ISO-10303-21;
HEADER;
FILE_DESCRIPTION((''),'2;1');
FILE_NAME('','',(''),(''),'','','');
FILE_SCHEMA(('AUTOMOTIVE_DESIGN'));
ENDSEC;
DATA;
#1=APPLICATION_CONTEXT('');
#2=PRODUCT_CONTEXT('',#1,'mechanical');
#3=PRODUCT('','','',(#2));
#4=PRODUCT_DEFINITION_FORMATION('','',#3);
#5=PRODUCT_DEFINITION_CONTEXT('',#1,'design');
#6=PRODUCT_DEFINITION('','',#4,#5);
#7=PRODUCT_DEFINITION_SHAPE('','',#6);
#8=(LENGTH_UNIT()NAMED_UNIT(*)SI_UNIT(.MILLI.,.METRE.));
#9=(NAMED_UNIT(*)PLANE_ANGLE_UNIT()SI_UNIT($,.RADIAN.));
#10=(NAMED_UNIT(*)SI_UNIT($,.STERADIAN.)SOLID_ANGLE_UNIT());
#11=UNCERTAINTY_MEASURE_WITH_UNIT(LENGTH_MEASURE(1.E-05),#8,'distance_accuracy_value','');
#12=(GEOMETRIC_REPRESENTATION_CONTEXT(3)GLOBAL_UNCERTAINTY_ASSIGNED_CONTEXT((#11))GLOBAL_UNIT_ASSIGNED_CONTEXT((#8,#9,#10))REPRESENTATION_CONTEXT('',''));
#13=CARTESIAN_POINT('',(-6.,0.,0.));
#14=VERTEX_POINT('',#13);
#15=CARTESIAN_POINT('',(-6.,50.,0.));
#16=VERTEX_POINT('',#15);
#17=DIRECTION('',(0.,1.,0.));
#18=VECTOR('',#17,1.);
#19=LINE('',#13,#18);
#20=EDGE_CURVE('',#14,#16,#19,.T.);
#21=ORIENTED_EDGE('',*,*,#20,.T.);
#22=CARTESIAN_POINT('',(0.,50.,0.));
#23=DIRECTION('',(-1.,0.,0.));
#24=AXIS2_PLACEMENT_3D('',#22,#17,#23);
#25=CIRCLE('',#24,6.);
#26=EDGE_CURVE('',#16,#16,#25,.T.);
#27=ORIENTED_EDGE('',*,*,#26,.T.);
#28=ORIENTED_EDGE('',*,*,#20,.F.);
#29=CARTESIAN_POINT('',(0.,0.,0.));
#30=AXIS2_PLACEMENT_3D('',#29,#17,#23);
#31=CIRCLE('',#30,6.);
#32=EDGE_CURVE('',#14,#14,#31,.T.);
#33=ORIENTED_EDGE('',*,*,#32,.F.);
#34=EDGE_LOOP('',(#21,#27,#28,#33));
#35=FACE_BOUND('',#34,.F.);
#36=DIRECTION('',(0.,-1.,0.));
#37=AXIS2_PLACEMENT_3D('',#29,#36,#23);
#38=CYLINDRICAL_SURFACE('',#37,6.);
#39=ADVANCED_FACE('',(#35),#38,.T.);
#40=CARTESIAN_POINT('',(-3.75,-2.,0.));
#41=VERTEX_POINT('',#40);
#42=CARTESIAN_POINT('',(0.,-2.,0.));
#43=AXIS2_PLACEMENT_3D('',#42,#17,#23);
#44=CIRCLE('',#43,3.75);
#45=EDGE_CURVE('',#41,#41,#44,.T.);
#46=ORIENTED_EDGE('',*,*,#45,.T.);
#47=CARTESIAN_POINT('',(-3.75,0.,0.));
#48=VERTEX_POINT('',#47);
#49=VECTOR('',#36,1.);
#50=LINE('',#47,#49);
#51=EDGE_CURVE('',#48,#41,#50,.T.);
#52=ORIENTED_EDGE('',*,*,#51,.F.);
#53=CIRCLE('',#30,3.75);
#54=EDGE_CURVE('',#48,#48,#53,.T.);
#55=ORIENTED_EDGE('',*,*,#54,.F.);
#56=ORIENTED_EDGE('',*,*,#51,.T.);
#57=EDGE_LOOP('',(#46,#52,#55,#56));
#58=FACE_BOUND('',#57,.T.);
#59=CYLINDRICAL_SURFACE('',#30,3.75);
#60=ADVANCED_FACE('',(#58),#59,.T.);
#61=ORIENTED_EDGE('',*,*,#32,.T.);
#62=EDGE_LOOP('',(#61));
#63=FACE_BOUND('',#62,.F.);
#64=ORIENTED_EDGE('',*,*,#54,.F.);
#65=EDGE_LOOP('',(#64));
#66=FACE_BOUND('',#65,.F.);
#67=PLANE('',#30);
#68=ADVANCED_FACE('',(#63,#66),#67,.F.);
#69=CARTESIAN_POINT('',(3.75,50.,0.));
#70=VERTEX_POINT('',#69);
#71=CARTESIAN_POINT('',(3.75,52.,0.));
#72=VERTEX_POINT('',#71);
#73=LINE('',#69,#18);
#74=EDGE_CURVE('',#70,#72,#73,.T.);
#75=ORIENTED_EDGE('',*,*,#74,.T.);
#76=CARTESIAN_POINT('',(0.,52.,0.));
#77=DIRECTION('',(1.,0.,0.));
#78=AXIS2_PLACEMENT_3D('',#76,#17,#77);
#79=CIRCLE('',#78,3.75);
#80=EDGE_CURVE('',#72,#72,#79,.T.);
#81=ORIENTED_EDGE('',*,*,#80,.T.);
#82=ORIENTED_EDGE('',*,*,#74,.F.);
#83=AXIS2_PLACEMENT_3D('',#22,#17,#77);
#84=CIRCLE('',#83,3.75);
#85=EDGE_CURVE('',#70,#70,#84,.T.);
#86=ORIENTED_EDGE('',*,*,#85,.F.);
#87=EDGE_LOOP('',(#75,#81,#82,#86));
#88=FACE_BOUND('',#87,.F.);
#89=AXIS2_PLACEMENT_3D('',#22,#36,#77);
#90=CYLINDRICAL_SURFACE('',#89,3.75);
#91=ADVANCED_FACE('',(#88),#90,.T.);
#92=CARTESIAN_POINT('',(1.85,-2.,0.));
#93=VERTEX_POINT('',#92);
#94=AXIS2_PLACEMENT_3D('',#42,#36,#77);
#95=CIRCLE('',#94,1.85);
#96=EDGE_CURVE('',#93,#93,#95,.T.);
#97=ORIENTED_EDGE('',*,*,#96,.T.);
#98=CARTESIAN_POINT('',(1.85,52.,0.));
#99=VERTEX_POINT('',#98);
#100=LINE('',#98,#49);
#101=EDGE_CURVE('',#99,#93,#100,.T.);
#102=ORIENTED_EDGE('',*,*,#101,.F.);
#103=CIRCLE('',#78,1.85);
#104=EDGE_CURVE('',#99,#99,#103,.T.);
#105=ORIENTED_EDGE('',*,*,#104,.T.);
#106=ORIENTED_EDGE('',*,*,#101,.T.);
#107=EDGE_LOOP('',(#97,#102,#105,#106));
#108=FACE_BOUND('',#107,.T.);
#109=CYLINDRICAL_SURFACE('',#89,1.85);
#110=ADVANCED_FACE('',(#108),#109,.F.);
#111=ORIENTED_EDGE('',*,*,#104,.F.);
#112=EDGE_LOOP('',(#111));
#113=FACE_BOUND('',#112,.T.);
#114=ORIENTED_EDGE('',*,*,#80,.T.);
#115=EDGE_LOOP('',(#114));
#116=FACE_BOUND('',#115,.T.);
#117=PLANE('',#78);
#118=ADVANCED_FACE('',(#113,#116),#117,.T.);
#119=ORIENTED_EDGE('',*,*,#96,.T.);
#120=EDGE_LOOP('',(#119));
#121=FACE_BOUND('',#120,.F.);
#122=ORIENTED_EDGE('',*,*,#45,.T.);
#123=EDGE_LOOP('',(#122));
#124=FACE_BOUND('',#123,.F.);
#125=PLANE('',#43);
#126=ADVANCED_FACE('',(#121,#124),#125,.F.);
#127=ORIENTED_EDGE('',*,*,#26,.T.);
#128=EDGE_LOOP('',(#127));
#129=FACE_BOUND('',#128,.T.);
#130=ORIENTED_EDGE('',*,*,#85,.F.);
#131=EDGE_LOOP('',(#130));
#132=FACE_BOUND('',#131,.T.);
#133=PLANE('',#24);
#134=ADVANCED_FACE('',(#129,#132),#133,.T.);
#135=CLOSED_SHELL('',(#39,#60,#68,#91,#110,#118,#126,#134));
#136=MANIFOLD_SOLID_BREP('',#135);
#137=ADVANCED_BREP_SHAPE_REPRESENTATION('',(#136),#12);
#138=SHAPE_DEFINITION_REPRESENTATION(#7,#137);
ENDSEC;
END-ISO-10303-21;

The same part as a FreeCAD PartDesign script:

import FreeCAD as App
import Part
import Sketcher
from FreeCAD import Vector
Q = App.Units.Quantity

doc = App.newDocument("Part")
body = doc.addObject("PartDesign::Body", "Body")

# Sketch on XZ plane
sketch1 = doc.addObject("Sketcher::SketchObject", "Sketch")
body.addObject(sketch1)
sketch1.AttachmentSupport = (doc.XZ_Plane, [""])
sketch1.MapMode = "FlatFace"
sketch1.addGeometry(Part.Circle(Vector(0, 0, 0), Vector(0, 0, 1), 6), False)
sketch1.addConstraint(Sketcher.Constraint("Coincident", 0, 3, -1, 1))
sketch1.addConstraint(Sketcher.Constraint("Diameter", 0, Q("12 mm")))
pad1 = doc.addObject("PartDesign::Pad", "Pad")
body.addObject(pad1)
pad1.Profile = sketch1
pad1.Length = 50
pad1.Reversed = True

# Sketch on XZ plane
sketch2 = doc.addObject("Sketcher::SketchObject", "Sketch001")
body.addObject(sketch2)
sketch2.AttachmentSupport = (doc.XZ_Plane, [""])
sketch2.MapMode = "FlatFace"
sketch2.addGeometry(Part.Circle(Vector(0, 0, 0), Vector(0, 0, 1), 3.8), False)
sketch2.addConstraint(Sketcher.Constraint("Coincident", 0, 3, -1, 1))
sketch2.addConstraint(Sketcher.Constraint("Diameter", 0, Q("7.5 mm")))
pad2 = doc.addObject("PartDesign::Pad", "Pad001")
body.addObject(pad2)
pad2.Profile = sketch2
pad2.Length = 2

# Sketch on XZ plane
sketch3 = doc.addObject("Sketcher::SketchObject", "Sketch002")
body.addObject(sketch3)
sketch3.AttachmentSupport = (doc.XZ_Plane, [""])
sketch3.MapMode = "FlatFace"
sketch3.AttachmentOffset = App.Placement(Vector(0, 0, 2), App.Rotation())
sketch3.addGeometry(Part.Circle(Vector(0, 0, 0), Vector(0, 0, 1), 1.9), False)
sketch3.addConstraint(Sketcher.Constraint("Coincident", 0, 3, -1, 1))
sketch3.addConstraint(Sketcher.Constraint("Diameter", 0, Q("3.7 mm")))
pocket1 = doc.addObject("PartDesign::Pocket", "Pocket")
body.addObject(pocket1)
pocket1.Profile = sketch3
pocket1.Length = 600

# Sketch on XZ plane
sketch4 = doc.addObject("Sketcher::SketchObject", "Sketch003")
body.addObject(sketch4)
sketch4.AttachmentSupport = (doc.XZ_Plane, [""])
sketch4.MapMode = "FlatFace"
sketch4.AttachmentOffset = App.Placement(Vector(0, 0, -50), App.Rotation())
sketch4.addGeometry(Part.Circle(Vector(0, 0, 0), Vector(0, 0, 1), 3.8), False)
sketch4.addGeometry(Part.Circle(Vector(0, 0, 0), Vector(0, 0, 1), 1.9), False)
sketch4.addConstraint(Sketcher.Constraint("Coincident", 0, 3, -1, 1))
sketch4.addConstraint(Sketcher.Constraint("Coincident", 1, 3, -1, 1))
sketch4.addConstraint(Sketcher.Constraint("Diameter", 0, Q("7.5 mm")))
sketch4.addConstraint(Sketcher.Constraint("Diameter", 1, Q("3.7 mm")))
pad3 = doc.addObject("PartDesign::Pad", "Pad002")
body.addObject(pad3)
pad3.Profile = sketch4
pad3.Length = 2
pad3.Reversed = True

doc.recompute()
